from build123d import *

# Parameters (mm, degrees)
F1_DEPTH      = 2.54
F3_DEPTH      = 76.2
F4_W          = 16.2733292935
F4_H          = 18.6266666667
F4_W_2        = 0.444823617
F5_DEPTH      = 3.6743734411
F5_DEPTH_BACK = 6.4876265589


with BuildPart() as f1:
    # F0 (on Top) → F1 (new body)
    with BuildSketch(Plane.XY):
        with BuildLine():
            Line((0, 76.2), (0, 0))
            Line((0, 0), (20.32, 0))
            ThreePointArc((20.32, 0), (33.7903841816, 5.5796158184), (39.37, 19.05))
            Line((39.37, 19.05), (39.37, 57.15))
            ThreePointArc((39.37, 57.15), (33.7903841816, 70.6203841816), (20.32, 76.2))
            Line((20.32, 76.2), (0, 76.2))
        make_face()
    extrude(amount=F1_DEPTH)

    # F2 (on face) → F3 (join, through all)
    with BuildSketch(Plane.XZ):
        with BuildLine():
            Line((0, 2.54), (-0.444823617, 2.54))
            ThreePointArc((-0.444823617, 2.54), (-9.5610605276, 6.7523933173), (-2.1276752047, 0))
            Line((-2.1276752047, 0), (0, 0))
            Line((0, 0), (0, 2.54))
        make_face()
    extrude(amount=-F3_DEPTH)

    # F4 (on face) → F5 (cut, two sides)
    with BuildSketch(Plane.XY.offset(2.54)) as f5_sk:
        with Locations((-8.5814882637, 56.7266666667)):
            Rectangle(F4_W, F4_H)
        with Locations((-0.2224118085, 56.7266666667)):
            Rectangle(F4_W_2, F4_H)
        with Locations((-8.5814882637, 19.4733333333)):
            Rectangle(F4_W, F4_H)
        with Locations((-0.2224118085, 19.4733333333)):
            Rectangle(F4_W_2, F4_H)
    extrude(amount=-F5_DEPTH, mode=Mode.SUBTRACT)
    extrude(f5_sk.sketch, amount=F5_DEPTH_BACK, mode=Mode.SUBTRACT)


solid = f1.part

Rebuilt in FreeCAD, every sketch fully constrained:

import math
import FreeCAD as App
import Part
import Sketcher
Q = App.Units.Quantity

doc = App.newDocument("Part")
params = doc.addObject("Spreadsheet::Sheet", "Params")
for row, (alias, value) in enumerate([
    ("sketch1_height", "3 in"),
    ("sketch1_radius", "0.75 in"),
    ("sketch1_width", "0.8 in"),
    ("pad1_length", "0.1 in"),
    ("sketch2_radius", "0.2 in"),
    ("sketch2_height", "0.1 in"),
    ("pad2_length", "3 in"),
], start=1):
    params.set(f"A{row}", alias)
    params.set(f"B{row}", "=" + value)
    params.setAlias(f"B{row}", alias)

body = doc.addObject("PartDesign::Body", "Body")

# Sketch on XY plane
sketch1 = body.newObject("Sketcher::SketchObject", "Sketch")
sketch1.AttachmentSupport = (doc.getObject("XY_Plane"), [""])
sketch1.MapMode = "FlatFace"
sketch1.addGeometry([
    Part.LineSegment(App.Vector(0, 76.2, 0), App.Vector(0, 0, 0)),  # 0
    Part.LineSegment(App.Vector(0, 0, 0), App.Vector(20.32, 0, 0)),  # 1
    Part.ArcOfCircle(Part.Circle(App.Vector(20.32, 19.05, 0), App.Vector(0, 0, 1), 19.05), math.radians(-90), math.radians(0)),  # 2
    Part.LineSegment(App.Vector(39.37, 19.05, 0), App.Vector(39.37, 57.15, 0)),  # 3
    Part.ArcOfCircle(Part.Circle(App.Vector(20.32, 57.15, 0), App.Vector(0, 0, 1), 19.05), math.radians(0), math.radians(90)),  # 4
    Part.LineSegment(App.Vector(20.32, 76.2, 0), App.Vector(0, 76.2, 0)),  # 5
], False)
sketch1.addConstraint([
    Sketcher.Constraint("Coincident", 0, 2, 1, 1),
    Sketcher.Constraint("Tangent", 1, 2, 2, 1),
    Sketcher.Constraint("Tangent", 2, 2, 3, 1),
    Sketcher.Constraint("Tangent", 3, 2, 4, 1),
    Sketcher.Constraint("Tangent", 4, 2, 5, 1),
    Sketcher.Constraint("Coincident", 5, 2, 0, 1),
    Sketcher.Constraint("Vertical", 0),
    Sketcher.Constraint("Horizontal", 1),
    Sketcher.Constraint("Vertical", 3),
    Sketcher.Constraint("Horizontal", 5),
    Sketcher.Constraint("Coincident", 0, 2, -1, 1),
    Sketcher.Constraint("Equal", 2, 4),
    Sketcher.Constraint("DistanceY", 0, 2, 0, 1, Q("3 in")),
    Sketcher.Constraint("Radius", 2, Q("0.75 in")),
    Sketcher.Constraint("DistanceX", 1, 1, 1, 2, Q("0.8 in")),
])
sketch1.setExpression("Constraints[12]", "Params.sketch1_height")
sketch1.setExpression("Constraints[13]", "Params.sketch1_radius")
sketch1.setExpression("Constraints[14]", "Params.sketch1_width")
pad1 = body.newObject("PartDesign::Pad", "Pad")
pad1.Profile = sketch1
pad1.setExpression("Length", "Params.pad1_length")

# Sketch on XZ plane
sketch2 = body.newObject("Sketcher::SketchObject", "Sketch001")
sketch2.AttachmentSupport = (doc.getObject("XZ_Plane"), [""])
sketch2.MapMode = "FlatFace"
sketch2.addGeometry([
    Part.LineSegment(App.Vector(0, 2.54, 0), App.Vector(-0.444824, 2.54, 0)),
    Part.ArcOfCircle(Part.Circle(App.Vector(-5.326197, 3.946627, 0), App.Vector(0, 0, 1), 5.08), math.radians(-16.074975), math.radians(309.022844)),
    Part.LineSegment(App.Vector(-2.127675, 0, 0), App.Vector(0, 0, 0)),
    Part.LineSegment(App.Vector(0, 0, 0), App.Vector(0, 2.54, 0)),
], False)
sketch2.addConstraint([
    Sketcher.Constraint("Coincident", 0, 2, 1, 1),
    Sketcher.Constraint("Coincident", 1, 2, 2, 1),
    Sketcher.Constraint("Coincident", 2, 2, 3, 1),
    Sketcher.Constraint("Coincident", 3, 2, 0, 1),
    Sketcher.Constraint("Horizontal", 0),
    Sketcher.Constraint("Horizontal", 2),
    Sketcher.Constraint("Vertical", 3),
    Sketcher.Constraint("Coincident", 2, 2, -1, 1),
    Sketcher.Constraint("Radius", 1, Q("0.2 in")),
    Sketcher.Constraint("DistanceY", 3, 1, 3, 2, Q("0.1 in")),
    Sketcher.Constraint("DistanceX", 0, 2, 0, 1, 0.444824),
    Sketcher.Constraint("DistanceX", 2, 1, 2, 2, 2.127675),
])
sketch2.setExpression("Constraints[8]", "Params.sketch2_radius")
sketch2.setExpression("Constraints[9]", "Params.sketch2_height")
pad2 = body.newObject("PartDesign::Pad", "Pad001")
pad2.Profile = sketch2
pad2.setExpression("Length", "Params.pad2_length")
pad2.Reversed = True

# Sketch on XY plane
sketch3 = body.newObject("Sketcher::SketchObject", "Sketch002")
sketch3.AttachmentSupport = (doc.getObject("XY_Plane"), [""])
sketch3.MapMode = "FlatFace"
sketch3.AttachmentOffset = App.Placement(App.Vector(0, 0, 0.1 * 25.4), App.Rotation())
sketch3.addGeometry([
    Part.LineSegment(App.Vector(-16.718153, 66.04, 0), App.Vector(-16.718153, 47.413333, 0)),  # 0
    Part.LineSegment(App.Vector(-16.718153, 47.413333, 0), App.Vector(0, 47.413333, 0)),  # 1
    Part.LineSegment(App.Vector(0, 47.413333, 0), App.Vector(0, 66.04, 0)),  # 2
    Part.LineSegment(App.Vector(0, 66.04, 0), App.Vector(-16.718153, 66.04, 0)),  # 3
    Part.LineSegment(App.Vector(-16.718153, 28.786667, 0), App.Vector(-16.718153, 10.16, 0)),  # 4
    Part.LineSegment(App.Vector(-16.718153, 10.16, 0), App.Vector(0, 10.16, 0)),  # 5
    Part.LineSegment(App.Vector(0, 10.16, 0), App.Vector(0, 28.786667, 0)),  # 6
    Part.LineSegment(App.Vector(0, 28.786667, 0), App.Vector(-16.718153, 28.786667, 0)),  # 7
], False)
sketch3.addConstraint([
    Sketcher.Constraint("Coincident", 0, 2, 1, 1),
    Sketcher.Constraint("Coincident", 1, 2, 2, 1),
    Sketcher.Constraint("Coincident", 2, 2, 3, 1),
    Sketcher.Constraint("Coincident", 3, 2, 0, 1),
    Sketcher.Constraint("Coincident", 4, 2, 5, 1),
    Sketcher.Constraint("Coincident", 5, 2, 6, 1),
    Sketcher.Constraint("Coincident", 6, 2, 7, 1),
    Sketcher.Constraint("Coincident", 7, 2, 4, 1),
    Sketcher.Constraint("Vertical", 0),
    Sketcher.Constraint("Horizontal", 1),
    Sketcher.Constraint("Vertical", 2),
    Sketcher.Constraint("Horizontal", 3),
    Sketcher.Constraint("Vertical", 4),
    Sketcher.Constraint("Horizontal", 5),
    Sketcher.Constraint("Vertical", 6),
    Sketcher.Constraint("Horizontal", 7),
    Sketcher.Constraint("PointOnObject", 1, 2, -2),
    Sketcher.Constraint("PointOnObject", 5, 2, -2),
    Sketcher.Constraint("Vertical", 3, 2, 4, 2),
    Sketcher.Constraint("Equal", 2, 4),
    Sketcher.Constraint("DistanceY", -1, 1, 2, 2, Q("2.6 in")),
    Sketcher.Constraint("DistanceY", -1, 1, 4, 2, Q("0.4 in")),
    Sketcher.Constraint("DistanceX", 1, 1, 1, 2, 16.718153),
    Sketcher.Constraint("DistanceY", 0, 2, 0, 1, 18.626667),
])
pocket1 = body.newObject("PartDesign::Pocket", "Pocket")
pocket1.Profile = sketch3
pocket1.Type = "ThroughAll"
pocket1.Midplane = True

doc.recompute()
